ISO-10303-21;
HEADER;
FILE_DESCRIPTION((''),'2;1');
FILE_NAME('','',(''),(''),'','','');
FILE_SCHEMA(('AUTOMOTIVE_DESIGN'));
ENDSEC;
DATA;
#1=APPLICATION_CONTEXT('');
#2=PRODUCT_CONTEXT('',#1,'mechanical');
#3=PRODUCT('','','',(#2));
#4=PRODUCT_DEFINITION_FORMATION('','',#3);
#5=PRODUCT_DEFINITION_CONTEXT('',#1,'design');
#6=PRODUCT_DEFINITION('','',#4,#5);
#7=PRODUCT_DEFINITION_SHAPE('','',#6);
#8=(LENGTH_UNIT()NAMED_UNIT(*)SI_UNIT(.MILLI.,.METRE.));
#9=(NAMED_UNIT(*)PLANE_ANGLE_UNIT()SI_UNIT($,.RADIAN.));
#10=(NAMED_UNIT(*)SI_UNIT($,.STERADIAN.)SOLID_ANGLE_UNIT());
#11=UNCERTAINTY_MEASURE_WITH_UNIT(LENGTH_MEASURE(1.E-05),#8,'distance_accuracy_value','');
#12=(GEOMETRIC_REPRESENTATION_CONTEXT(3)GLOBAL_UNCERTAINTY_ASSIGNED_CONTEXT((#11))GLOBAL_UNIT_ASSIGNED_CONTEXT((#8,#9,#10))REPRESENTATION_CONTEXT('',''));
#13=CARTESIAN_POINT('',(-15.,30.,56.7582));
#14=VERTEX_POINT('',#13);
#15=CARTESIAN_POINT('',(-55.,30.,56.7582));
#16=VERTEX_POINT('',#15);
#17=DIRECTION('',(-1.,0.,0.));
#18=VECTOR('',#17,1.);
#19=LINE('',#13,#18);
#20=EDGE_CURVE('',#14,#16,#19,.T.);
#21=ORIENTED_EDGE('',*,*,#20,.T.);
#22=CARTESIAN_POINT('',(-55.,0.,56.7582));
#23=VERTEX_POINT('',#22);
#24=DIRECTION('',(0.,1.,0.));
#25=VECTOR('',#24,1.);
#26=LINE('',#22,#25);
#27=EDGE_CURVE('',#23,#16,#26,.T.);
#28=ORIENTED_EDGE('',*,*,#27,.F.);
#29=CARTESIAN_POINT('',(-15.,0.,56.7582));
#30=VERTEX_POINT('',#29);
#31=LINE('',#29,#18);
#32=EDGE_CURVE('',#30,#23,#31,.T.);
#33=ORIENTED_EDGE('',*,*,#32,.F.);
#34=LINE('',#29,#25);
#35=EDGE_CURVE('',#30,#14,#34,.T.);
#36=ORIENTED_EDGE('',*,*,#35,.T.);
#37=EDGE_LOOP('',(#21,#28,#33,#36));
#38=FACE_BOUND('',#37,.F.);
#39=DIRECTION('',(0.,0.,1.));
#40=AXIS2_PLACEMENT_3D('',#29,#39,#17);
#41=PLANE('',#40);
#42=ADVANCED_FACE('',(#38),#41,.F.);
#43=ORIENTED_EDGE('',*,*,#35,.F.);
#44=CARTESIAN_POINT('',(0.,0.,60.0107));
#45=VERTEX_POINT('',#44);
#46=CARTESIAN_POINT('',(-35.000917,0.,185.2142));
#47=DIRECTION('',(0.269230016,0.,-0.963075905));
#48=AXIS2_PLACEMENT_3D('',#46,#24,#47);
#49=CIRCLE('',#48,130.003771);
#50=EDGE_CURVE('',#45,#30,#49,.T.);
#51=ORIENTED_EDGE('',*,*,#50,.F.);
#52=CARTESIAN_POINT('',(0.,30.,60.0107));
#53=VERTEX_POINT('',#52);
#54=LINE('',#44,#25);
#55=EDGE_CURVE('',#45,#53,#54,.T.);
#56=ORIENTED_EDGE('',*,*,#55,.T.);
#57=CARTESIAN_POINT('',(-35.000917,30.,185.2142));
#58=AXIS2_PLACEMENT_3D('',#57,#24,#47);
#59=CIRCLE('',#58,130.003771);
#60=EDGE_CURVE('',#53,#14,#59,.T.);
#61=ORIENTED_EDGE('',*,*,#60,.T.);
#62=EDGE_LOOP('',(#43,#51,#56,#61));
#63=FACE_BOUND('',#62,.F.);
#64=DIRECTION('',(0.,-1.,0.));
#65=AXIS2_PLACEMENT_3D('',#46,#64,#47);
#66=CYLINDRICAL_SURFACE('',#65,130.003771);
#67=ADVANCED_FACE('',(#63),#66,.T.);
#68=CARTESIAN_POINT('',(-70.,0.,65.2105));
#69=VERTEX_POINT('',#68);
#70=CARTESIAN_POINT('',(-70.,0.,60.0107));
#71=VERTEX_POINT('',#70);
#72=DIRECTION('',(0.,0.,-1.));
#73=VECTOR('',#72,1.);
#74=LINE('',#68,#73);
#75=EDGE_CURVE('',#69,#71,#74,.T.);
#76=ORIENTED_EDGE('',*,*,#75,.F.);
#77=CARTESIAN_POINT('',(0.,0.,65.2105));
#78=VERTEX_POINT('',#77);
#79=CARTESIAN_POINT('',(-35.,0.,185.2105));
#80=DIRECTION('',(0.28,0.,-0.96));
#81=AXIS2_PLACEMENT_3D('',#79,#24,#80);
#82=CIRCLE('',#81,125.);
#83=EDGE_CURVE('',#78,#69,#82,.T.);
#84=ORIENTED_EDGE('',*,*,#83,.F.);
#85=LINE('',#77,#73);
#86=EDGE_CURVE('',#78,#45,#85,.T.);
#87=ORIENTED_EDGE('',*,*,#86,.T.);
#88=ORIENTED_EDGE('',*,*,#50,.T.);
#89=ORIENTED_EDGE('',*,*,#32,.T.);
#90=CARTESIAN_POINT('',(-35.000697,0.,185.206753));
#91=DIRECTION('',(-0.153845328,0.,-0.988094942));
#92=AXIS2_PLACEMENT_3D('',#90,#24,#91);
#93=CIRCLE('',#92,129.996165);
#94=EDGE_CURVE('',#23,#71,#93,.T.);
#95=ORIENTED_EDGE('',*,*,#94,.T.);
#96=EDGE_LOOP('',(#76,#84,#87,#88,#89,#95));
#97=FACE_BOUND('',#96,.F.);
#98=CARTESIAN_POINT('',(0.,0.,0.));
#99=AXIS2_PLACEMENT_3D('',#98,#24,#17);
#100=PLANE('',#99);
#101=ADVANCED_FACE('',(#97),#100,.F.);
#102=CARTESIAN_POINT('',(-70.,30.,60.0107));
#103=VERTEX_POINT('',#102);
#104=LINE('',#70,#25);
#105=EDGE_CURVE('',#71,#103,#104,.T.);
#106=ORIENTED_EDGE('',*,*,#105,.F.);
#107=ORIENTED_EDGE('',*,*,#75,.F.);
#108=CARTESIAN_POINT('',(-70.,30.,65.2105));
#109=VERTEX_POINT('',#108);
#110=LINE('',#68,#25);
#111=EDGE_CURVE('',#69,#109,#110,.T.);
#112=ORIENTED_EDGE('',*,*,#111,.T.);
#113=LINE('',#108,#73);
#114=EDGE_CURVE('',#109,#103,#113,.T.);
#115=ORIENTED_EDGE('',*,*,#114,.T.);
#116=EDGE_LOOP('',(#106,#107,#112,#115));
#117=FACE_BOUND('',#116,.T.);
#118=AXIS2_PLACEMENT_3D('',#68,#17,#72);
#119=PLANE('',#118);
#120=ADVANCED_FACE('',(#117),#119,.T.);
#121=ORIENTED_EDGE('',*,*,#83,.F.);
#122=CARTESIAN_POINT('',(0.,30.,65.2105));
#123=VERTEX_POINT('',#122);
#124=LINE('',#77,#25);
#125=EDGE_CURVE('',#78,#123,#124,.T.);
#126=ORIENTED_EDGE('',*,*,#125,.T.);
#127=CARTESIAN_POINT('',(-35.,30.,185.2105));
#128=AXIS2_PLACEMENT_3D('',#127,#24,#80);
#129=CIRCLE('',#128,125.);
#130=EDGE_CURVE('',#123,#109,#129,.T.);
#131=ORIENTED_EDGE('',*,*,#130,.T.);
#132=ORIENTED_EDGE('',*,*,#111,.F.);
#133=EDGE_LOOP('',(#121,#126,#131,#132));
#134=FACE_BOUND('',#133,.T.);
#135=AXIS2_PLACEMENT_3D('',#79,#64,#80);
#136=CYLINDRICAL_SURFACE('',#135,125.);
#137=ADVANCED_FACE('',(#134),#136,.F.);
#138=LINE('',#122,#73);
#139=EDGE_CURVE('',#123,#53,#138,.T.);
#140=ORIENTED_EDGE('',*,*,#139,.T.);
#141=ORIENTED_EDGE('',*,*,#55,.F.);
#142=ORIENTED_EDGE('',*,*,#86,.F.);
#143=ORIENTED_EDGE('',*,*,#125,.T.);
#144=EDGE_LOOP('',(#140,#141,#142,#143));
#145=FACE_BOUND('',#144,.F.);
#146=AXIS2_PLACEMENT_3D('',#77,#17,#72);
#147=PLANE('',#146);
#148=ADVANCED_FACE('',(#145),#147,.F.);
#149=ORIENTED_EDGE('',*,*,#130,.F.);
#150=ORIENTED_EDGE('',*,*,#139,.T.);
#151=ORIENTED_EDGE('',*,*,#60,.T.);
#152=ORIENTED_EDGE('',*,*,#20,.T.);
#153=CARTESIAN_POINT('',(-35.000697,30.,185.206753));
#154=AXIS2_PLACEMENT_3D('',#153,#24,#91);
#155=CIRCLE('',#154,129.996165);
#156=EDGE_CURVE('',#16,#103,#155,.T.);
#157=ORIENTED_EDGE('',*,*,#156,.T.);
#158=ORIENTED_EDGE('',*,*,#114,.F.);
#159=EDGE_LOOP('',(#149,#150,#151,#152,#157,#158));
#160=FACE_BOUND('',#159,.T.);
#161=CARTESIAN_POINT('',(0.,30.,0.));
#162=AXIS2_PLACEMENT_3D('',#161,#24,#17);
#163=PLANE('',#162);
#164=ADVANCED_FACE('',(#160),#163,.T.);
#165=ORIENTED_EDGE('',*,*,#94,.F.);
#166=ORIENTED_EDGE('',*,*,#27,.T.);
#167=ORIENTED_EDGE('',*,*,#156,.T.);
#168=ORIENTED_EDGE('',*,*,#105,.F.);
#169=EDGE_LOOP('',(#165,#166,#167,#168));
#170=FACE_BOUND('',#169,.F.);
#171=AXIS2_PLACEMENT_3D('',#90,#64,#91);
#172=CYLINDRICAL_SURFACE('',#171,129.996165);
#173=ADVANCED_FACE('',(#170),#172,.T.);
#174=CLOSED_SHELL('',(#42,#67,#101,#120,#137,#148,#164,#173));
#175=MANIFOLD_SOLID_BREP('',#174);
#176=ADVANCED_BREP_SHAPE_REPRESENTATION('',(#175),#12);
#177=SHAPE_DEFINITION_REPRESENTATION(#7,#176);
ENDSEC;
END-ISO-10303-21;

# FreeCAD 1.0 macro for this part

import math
import FreeCAD as App
import Part
import Sketcher

doc = App.newDocument("Part")
body = doc.addObject("PartDesign::Body", "Body")

# Sketch on XZ plane
sketch1 = body.newObject("Sketcher::SketchObject", "Sketch")
sketch1.AttachmentSupport = (doc.getObject("XZ_Plane"), [""])
sketch1.MapMode = "FlatFace"
sketch1.addGeometry(Part.ArcOfCircle(Part.Circle(App.Vector(-35, 185.2105, 0), App.Vector(0, 0, 1), 125), math.radians(-106.260205), math.radians(-73.739795)), False)
sketch1.addGeometry(Part.LineSegment(App.Vector(0, 65.2105, 0), App.Vector(0, 60.0107, 0)), False)
sketch1.addGeometry(Part.ArcOfCircle(Part.Circle(App.Vector(-35.000917, 185.2142, 0), App.Vector(0, 0, 1), 130.003771), math.radians(-81.149966), math.radians(-74.381547)), False)
sketch1.addGeometry(Part.LineSegment(App.Vector(-15, 56.7582, 0), App.Vector(-55, 56.7582, 0)), False)
sketch1.addGeometry(Part.ArcOfCircle(Part.Circle(App.Vector(-35.000697, 185.206753, 0), App.Vector(0, 0, 1), 129.996165), math.radians(-105.618652), math.radians(-98.849835)), False)
sketch1.addGeometry(Part.LineSegment(App.Vector(-70, 60.0107, 0), App.Vector(-70, 65.2105, 0)), False)
sketch1.addConstraint(Sketcher.Constraint("Coincident", 0, 2, 1, 1))
sketch1.addConstraint(Sketcher.Constraint("Coincident", 1, 2, 2, 2))
sketch1.addConstraint(Sketcher.Constraint("Coincident", 2, 1, 3, 1))
sketch1.addConstraint(Sketcher.Constraint("Coincident", 3, 2, 4, 2))
sketch1.addConstraint(Sketcher.Constraint("Coincident", 4, 1, 5, 1))
sketch1.addConstraint(Sketcher.Constraint("Coincident", 5, 2, 0, 1))
sketch1.addConstraint(Sketcher.Constraint("Vertical", 1))
sketch1.addConstraint(Sketcher.Constraint("Horizontal", 3))
sketch1.addConstraint(Sketcher.Constraint("Vertical", 5))
sketch1.addConstraint(Sketcher.Constraint("PointOnObject", 0, 2, -2))
sketch1.addConstraint(Sketcher.Constraint("Horizontal", 1, 2, 4, 1))
sketch1.addConstraint(Sketcher.Constraint("Horizontal", 0, 2, 5, 2))
sketch1.addConstraint(Sketcher.Constraint("DistanceX", 3, 2, 3, 1, 40.0))
sketch1.addConstraint(Sketcher.Constraint("DistanceX", 0, 3, -1, 1, 35.0))
sketch1.addConstraint(Sketcher.Constraint("Radius", 0, 125.0))
sketch1.addConstraint(Sketcher.Constraint("DistanceX", 2, 1, -1, 1, 15.0))
sketch1.addConstraint(Sketcher.Constraint("Radius", 2, 130.0038))
sketch1.addConstraint(Sketcher.Constraint("Radius", 4, 129.9962))
sketch1.addConstraint(Sketcher.Constraint("DistanceY", 1, 2, 1, 1, 5.1998))
sketch1.addConstraint(Sketcher.Constraint("DistanceX", 2, 3, -1, 1, 35.001))
sketch1.addConstraint(Sketcher.Constraint("DistanceY", -1, 1, 0, 3, 185.2105))
pad1 = body.newObject("PartDesign::Pad", "Pad")
pad1.Profile = sketch1
pad1.Length = 30
pad1.Reversed = True

doc.recompute()
